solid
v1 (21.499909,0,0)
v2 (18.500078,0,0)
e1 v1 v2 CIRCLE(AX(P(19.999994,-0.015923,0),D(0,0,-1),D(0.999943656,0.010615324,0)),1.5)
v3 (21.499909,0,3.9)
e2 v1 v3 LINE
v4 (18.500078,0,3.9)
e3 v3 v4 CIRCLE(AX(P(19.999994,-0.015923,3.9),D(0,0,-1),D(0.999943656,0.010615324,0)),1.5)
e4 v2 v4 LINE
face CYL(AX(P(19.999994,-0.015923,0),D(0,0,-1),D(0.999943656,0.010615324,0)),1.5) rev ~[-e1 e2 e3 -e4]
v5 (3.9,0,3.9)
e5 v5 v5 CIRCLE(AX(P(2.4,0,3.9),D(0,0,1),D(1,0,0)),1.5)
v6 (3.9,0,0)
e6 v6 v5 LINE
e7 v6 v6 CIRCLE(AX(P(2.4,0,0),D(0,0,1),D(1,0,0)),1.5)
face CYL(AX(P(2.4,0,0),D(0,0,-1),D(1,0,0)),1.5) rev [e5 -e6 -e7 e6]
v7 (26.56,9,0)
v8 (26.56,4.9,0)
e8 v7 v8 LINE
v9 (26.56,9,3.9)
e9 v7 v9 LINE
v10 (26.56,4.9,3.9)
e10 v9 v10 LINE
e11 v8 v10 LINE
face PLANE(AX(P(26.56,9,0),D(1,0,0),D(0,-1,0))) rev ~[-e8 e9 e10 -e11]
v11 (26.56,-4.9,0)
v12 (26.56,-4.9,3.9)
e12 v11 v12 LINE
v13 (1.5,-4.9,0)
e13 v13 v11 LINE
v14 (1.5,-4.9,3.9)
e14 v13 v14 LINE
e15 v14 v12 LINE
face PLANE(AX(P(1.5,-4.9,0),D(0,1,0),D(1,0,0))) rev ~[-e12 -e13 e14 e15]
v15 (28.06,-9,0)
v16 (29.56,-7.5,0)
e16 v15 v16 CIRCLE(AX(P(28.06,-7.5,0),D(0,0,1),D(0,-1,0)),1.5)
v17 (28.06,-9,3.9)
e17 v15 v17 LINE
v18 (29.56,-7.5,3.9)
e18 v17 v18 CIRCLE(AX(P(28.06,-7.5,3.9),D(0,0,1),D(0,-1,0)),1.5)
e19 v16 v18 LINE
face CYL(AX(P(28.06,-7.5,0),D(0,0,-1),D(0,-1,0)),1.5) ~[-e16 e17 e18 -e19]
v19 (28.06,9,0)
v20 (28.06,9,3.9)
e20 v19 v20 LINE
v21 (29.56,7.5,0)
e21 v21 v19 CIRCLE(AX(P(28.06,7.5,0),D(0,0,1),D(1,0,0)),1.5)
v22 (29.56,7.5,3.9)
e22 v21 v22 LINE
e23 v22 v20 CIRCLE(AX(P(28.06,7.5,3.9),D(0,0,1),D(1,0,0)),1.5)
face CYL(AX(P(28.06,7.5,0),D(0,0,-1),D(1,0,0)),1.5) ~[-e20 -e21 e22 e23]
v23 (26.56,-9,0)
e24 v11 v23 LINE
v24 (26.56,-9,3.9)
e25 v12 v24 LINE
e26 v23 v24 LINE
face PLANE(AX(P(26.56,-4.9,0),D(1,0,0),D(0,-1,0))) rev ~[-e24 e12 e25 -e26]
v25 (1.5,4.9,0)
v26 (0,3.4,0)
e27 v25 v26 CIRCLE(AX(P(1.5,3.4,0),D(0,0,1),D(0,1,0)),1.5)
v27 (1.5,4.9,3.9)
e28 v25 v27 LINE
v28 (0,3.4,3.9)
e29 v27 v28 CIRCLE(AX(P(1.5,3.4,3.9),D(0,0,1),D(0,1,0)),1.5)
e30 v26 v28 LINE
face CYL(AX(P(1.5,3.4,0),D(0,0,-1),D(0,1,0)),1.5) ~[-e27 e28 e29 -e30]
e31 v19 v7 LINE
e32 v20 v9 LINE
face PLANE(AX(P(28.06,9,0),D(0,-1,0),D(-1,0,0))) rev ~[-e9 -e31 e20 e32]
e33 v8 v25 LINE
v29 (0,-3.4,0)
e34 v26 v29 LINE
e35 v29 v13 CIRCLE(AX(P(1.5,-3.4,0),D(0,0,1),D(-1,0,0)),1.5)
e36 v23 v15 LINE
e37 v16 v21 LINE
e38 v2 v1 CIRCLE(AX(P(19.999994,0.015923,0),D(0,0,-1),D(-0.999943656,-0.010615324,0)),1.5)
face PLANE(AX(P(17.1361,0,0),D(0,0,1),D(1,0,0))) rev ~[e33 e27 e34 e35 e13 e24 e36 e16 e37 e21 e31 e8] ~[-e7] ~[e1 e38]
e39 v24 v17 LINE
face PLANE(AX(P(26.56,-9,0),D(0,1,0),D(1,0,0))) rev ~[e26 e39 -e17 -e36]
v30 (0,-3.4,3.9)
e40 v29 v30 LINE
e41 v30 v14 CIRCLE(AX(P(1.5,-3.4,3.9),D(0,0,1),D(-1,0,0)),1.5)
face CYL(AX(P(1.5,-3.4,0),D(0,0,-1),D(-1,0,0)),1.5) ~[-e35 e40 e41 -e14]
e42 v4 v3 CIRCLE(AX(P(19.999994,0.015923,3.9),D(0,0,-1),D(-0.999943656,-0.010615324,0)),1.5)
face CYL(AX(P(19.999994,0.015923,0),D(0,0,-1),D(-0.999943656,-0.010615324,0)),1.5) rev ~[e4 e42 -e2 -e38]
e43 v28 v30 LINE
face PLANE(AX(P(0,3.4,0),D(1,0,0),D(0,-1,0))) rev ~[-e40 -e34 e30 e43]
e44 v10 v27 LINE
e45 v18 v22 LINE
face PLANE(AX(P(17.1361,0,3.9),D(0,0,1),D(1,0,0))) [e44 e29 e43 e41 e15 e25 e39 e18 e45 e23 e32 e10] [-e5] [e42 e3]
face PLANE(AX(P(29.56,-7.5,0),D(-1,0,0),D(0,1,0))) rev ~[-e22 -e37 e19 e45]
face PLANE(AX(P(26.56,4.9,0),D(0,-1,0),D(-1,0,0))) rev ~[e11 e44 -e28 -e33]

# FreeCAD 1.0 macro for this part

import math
import FreeCAD as App
import Part
import Sketcher
from FreeCAD import Vector

doc = App.newDocument("Part")
body = doc.addObject("PartDesign::Body", "Body")

sketch1 = body.newObject("Sketcher::SketchObject", "Sketch")
sketch1.AttachmentSupport = (doc.getObject("XY_Plane"), [""])
sketch1.MapMode = "FlatFace"
sketch1.addGeometry(Part.LineSegment(Vector(0, 3.4, 0), Vector(0, -3.4, 0)), False)
sketch1.addGeometry(Part.ArcOfCircle(Part.Circle(Vector(1.5, -3.4, 0), Vector(0, 0, 1), 1.5), math.radians(180), math.radians(270)), False)
sketch1.addGeometry(Part.LineSegment(Vector(1.5, -4.9, 0), Vector(26.56, -4.9, 0)), False)
sketch1.addGeometry(Part.LineSegment(Vector(26.56, -4.9, 0), Vector(26.56, -9, 0)), False)
sketch1.addGeometry(Part.LineSegment(Vector(26.56, -9, 0), Vector(28.06, -9, 0)), False)
sketch1.addGeometry(Part.ArcOfCircle(Part.Circle(Vector(28.06, -7.5, 0), Vector(0, 0, 1), 1.5), math.radians(-90), math.radians(0)), False)
sketch1.addGeometry(Part.LineSegment(Vector(29.56, -7.5, 0), Vector(29.56, 7.5, 0)), False)
sketch1.addGeometry(Part.ArcOfCircle(Part.Circle(Vector(28.06, 7.5, 0), Vector(0, 0, 1), 1.5), math.radians(0), math.radians(90)), False)
sketch1.addGeometry(Part.LineSegment(Vector(28.06, 9, 0), Vector(26.56, 9, 0)), False)
sketch1.addGeometry(Part.LineSegment(Vector(26.56, 9, 0), Vector(26.56, 4.9, 0)), False)
sketch1.addGeometry(Part.LineSegment(Vector(26.56, 4.9, 0), Vector(1.5, 4.9, 0)), False)
sketch1.addGeometry(Part.ArcOfCircle(Part.Circle(Vector(1.5, 3.4, 0), Vector(0, 0, 1), 1.5), math.radians(90), math.radians(180)), False)
sketch1.addGeometry(Part.Circle(Vector(2.4, 0, 0), Vector(0, 0, 1), 1.5), False)
sketch1.addGeometry(Part.ArcOfCircle(Part.Circle(Vector(19.999994, -0.015923, 0), Vector(0, 0, 1), 1.5), math.radians(179.391775), math.radians(360.608225)), False)
sketch1.addGeometry(Part.ArcOfCircle(Part.Circle(Vector(19.999994, 0.015923, 0), Vector(0, 0, 1), 1.5), math.radians(-0.608225), math.radians(180.608225)), False)
sketch1.addConstraint(Sketcher.Constraint("Tangent", 0, 2, 1, 1))
sketch1.addConstraint(Sketcher.Constraint("Tangent", 1, 2, 2, 1))
sketch1.addConstraint(Sketcher.Constraint("Coincident", 2, 2, 3, 1))
sketch1.addConstraint(Sketcher.Constraint("Coincident", 3, 2, 4, 1))
sketch1.addConstraint(Sketcher.Constraint("Tangent", 4, 2, 5, 1))
sketch1.addConstraint(Sketcher.Constraint("Tangent", 5, 2, 6, 1))
sketch1.addConstraint(Sketcher.Constraint("Tangent", 6, 2, 7, 1))
sketch1.addConstraint(Sketcher.Constraint("Tangent", 7, 2, 8, 1))
sketch1.addConstraint(Sketcher.Constraint("Coincident", 8, 2, 9, 1))
sketch1.addConstraint(Sketcher.Constraint("Coincident", 9, 2, 10, 1))
sketch1.addConstraint(Sketcher.Constraint("Tangent", 10, 2, 11, 1))
sketch1.addConstraint(Sketcher.Constraint("Tangent", 11, 2, 0, 1))
sketch1.addConstraint(Sketcher.Constraint("Coincident", 13, 1, 14, 2))
sketch1.addConstraint(Sketcher.Constraint("Coincident", 14, 1, 13, 2))
sketch1.addConstraint(Sketcher.Constraint("Vertical", 0))
sketch1.addConstraint(Sketcher.Constraint("Horizontal", 2))
sketch1.addConstraint(Sketcher.Constraint("Vertical", 3))
sketch1.addConstraint(Sketcher.Constraint("Horizontal", 4))
sketch1.addConstraint(Sketcher.Constraint("Vertical", 6))
sketch1.addConstraint(Sketcher.Constraint("Horizontal", 8))
sketch1.addConstraint(Sketcher.Constraint("Vertical", 9))
sketch1.addConstraint(Sketcher.Constraint("Horizontal", 10))
sketch1.addConstraint(Sketcher.Constraint("Equal", 1, 5))
sketch1.addConstraint(Sketcher.Constraint("Equal", 5, 7))
sketch1.addConstraint(Sketcher.Constraint("Equal", 7, 11))
sketch1.addConstraint(Sketcher.Constraint("Equal", 11, 12))
sketch1.addConstraint(Sketcher.Constraint("Equal", 12, 13))
sketch1.addConstraint(Sketcher.Constraint("Equal", 13, 14))
sketch1.addConstraint(Sketcher.Constraint("Symmetric", 0, 2, 11, 2, -1, 1))
sketch1.addConstraint(Sketcher.Constraint("Symmetric", 13, 3, 14, 3, -1))
sketch1.addConstraint(Sketcher.Constraint("Symmetric", 3, 2, 8, 2, -1))
sketch1.addConstraint(Sketcher.Constraint("PointOnObject", 12, 3, -1))
sketch1.addConstraint(Sketcher.Constraint("Diameter", 12, 3.0))
sketch1.addConstraint(Sketcher.Constraint("DistanceY", 6, 1, 6, 2, 15.0))
sketch1.addConstraint(Sketcher.Constraint("DistanceX", 4, 1, 4, 2, 1.5))
sketch1.addConstraint(Sketcher.Constraint("DistanceY", 0, 2, 0, 1, 6.8))
sketch1.addConstraint(Sketcher.Constraint("DistanceX", 2, 1, 2, 2, 25.06))
sketch1.addConstraint(Sketcher.Constraint("DistanceX", -1, 1, 12, 3, 2.4))
sketch1.addConstraint(Sketcher.Constraint("DistanceX", -1, 1, 13, 1, 18.500078))
sketch1.addConstraint(Sketcher.Constraint("DistanceX", -1, 1, 14, 1, 21.499909))
pad1 = body.newObject("PartDesign::Pad", "Pad")
pad1.Profile = sketch1
pad1.Length = 3.9

doc.recompute()
